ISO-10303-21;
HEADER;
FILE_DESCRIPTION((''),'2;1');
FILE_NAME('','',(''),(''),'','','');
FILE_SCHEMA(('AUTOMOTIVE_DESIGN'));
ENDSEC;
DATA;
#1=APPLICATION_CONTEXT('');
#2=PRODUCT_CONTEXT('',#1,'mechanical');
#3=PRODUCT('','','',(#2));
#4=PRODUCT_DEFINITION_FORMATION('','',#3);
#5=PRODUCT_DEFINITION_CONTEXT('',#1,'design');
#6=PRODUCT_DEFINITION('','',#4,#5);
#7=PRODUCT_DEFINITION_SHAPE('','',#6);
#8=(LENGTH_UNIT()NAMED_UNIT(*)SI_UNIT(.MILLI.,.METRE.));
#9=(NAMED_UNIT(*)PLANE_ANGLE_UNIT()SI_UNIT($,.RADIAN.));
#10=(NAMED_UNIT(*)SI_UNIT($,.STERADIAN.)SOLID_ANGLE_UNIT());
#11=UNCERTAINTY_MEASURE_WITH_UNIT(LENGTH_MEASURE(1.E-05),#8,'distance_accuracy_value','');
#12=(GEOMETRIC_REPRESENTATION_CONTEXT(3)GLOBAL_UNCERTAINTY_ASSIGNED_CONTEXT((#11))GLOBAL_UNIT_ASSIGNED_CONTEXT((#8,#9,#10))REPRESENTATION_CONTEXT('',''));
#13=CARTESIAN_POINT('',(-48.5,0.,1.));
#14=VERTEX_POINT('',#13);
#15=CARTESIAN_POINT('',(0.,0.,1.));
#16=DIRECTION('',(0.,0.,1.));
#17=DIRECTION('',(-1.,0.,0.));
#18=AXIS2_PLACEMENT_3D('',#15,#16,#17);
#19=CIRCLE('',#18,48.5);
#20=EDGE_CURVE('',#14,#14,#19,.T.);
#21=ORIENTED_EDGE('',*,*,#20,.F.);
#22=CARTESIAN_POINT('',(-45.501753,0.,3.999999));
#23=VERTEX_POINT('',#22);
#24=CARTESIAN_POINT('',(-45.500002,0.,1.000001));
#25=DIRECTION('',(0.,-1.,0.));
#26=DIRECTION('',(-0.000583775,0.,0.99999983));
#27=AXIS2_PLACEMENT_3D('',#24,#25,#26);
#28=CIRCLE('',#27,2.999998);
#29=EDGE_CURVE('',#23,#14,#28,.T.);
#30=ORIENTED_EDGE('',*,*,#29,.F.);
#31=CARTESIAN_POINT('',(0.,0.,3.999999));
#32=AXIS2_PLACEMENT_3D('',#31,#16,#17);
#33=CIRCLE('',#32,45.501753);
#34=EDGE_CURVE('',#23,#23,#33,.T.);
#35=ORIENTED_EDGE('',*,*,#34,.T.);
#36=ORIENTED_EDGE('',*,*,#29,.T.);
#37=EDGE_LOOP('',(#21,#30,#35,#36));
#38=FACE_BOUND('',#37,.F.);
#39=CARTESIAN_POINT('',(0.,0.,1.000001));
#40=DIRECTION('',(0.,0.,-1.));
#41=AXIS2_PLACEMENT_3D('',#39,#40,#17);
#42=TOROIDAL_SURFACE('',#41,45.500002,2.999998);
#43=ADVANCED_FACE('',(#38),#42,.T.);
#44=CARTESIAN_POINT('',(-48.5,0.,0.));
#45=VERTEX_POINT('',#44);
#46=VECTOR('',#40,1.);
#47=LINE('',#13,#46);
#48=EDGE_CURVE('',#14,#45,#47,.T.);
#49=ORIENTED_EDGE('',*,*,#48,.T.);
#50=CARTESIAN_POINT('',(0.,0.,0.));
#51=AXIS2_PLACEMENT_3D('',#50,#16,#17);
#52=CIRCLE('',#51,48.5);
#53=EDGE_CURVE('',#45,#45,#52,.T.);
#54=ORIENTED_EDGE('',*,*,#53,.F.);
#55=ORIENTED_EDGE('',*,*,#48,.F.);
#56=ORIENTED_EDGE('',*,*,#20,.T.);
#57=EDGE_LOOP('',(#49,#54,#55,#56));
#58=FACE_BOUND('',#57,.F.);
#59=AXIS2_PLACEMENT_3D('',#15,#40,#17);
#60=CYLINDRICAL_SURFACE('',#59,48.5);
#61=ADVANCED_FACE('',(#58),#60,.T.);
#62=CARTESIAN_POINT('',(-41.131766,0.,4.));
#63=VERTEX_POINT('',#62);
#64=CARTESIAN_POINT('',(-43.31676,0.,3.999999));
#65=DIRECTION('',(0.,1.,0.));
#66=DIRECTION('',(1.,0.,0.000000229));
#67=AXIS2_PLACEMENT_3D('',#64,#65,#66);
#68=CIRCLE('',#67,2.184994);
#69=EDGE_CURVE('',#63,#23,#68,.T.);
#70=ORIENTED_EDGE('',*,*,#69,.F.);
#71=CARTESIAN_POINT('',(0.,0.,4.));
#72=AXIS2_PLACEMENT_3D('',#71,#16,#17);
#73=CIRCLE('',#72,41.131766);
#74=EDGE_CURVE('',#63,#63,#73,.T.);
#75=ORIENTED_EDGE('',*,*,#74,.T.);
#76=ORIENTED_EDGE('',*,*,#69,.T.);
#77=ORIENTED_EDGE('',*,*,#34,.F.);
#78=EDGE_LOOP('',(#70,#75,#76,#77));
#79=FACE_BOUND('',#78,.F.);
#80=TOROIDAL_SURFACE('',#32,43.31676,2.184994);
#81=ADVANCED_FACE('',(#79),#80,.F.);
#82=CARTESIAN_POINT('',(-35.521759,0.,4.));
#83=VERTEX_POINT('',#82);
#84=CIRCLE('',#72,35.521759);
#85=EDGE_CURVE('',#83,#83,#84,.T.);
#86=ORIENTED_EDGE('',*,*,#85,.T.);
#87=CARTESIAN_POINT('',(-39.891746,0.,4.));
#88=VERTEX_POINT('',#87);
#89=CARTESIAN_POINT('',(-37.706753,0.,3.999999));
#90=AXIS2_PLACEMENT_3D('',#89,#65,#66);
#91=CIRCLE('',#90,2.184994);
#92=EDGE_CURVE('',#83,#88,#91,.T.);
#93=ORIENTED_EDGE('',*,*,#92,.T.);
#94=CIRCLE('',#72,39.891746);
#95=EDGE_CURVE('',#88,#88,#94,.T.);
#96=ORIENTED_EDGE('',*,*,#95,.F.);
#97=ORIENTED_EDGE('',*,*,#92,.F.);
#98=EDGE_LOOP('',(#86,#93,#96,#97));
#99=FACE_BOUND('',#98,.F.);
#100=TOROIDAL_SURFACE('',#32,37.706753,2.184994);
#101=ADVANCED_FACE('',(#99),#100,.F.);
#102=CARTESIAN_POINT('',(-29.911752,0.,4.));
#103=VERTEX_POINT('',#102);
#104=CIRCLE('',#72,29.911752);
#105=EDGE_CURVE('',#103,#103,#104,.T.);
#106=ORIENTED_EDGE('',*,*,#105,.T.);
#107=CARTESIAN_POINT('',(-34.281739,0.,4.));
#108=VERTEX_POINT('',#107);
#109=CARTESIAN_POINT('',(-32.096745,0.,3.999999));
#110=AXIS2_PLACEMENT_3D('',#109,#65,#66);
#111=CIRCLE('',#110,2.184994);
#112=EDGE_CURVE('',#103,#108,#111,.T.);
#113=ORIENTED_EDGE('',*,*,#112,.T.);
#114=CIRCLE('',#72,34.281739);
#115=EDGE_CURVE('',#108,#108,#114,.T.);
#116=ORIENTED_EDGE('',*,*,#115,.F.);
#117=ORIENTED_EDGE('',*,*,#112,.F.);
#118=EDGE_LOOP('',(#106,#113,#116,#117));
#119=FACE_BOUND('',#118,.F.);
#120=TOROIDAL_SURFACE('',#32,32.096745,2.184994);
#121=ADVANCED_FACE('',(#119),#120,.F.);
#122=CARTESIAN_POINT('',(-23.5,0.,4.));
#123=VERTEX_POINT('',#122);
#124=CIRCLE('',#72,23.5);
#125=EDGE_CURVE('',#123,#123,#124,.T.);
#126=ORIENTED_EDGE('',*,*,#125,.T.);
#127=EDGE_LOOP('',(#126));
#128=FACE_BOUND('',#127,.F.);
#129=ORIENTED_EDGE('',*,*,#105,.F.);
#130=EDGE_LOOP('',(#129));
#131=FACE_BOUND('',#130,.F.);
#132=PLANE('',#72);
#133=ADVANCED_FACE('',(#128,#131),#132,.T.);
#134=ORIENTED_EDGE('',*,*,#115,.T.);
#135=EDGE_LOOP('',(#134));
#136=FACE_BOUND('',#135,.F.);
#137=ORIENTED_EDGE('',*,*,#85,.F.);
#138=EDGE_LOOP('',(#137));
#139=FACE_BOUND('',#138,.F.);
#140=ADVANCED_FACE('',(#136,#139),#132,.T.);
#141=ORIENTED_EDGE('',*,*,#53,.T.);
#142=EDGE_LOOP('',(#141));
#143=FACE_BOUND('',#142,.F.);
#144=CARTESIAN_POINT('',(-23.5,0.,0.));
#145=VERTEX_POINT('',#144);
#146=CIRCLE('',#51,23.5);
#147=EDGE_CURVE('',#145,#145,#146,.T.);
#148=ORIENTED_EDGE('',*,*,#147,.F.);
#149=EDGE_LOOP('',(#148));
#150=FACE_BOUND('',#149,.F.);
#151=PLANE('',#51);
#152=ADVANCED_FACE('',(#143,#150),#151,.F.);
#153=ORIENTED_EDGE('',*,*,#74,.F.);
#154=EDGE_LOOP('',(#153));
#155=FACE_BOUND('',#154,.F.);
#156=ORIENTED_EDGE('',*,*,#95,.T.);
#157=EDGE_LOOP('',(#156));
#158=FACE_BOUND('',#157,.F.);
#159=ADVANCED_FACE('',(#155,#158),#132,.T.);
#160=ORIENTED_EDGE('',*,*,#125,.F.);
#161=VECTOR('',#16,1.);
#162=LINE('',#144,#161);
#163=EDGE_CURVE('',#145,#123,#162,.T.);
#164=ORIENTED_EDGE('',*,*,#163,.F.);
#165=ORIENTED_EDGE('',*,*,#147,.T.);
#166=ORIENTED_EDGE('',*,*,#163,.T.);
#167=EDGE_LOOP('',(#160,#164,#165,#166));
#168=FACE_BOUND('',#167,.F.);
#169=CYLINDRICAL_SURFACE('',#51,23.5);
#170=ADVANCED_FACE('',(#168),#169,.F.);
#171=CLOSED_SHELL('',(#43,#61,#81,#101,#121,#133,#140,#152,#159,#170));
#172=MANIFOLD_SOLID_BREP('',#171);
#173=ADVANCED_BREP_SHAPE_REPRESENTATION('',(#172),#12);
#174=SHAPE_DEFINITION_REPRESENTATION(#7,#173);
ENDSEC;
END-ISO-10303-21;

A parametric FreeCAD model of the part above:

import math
import FreeCAD as App
import Part
import Sketcher

V = App.Vector
Q = App.Units.Quantity

doc = App.newDocument("Part")
body = doc.addObject("PartDesign::Body", "Body")

# Sketch on XZ plane
sketch1 = body.newObject("Sketcher::SketchObject", "Sketch")
sketch1.AttachmentSupport = (doc.getObject("XZ_Plane"), [""])
sketch1.MapMode = "FlatFace"
sketch1.addGeometry([
    Part.LineSegment(V(-48.5, 0, 0), V(-23.5, 0, 0)),  # 0
    Part.LineSegment(V(-23.5, 0, 0), V(-23.5, 4, 0)),  # 1
    Part.LineSegment(V(-23.5, 4, 0), V(-29.9, 4, 0)),  # 2
    Part.ArcOfCircle(Part.Circle(V(-32.1, 4, 0), V(0, 0, 1), 2.2), math.radians(180), math.radians(360)),  # 3
    Part.LineSegment(V(-34.3, 4, 0), V(-35.5, 4, 0)),  # 4
    Part.ArcOfCircle(Part.Circle(V(-37.7, 4, 0), V(0, 0, 1), 2.2), math.radians(180), math.radians(360)),  # 5
    Part.LineSegment(V(-39.9, 4, 0), V(-41.1, 4, 0)),  # 6
    Part.ArcOfCircle(Part.Circle(V(-43.3, 4, 0), V(0, 0, 1), 2.2), math.radians(-180), math.radians(0)),  # 7
    Part.ArcOfCircle(Part.Circle(V(-45.5, 1, 0), V(0, 0, 1), 3), math.radians(90), math.radians(180)),  # 8
    Part.LineSegment(V(-48.5, 1, 0), V(-48.5, 0, 0)),  # 9
], False)
sketch1.addConstraint([
    Sketcher.Constraint("Coincident", 0, 2, 1, 1),
    Sketcher.Constraint("Coincident", 1, 2, 2, 1),
    Sketcher.Constraint("Coincident", 2, 2, 3, 2),
    Sketcher.Constraint("Coincident", 3, 1, 4, 1),
    Sketcher.Constraint("Coincident", 4, 2, 5, 2),
    Sketcher.Constraint("Coincident", 5, 1, 6, 1),
    Sketcher.Constraint("Coincident", 6, 2, 7, 2),
    Sketcher.Constraint("Coincident", 7, 1, 8, 1),
    Sketcher.Constraint("Tangent", 8, 2, 9, 1),
    Sketcher.Constraint("Coincident", 9, 2, 0, 1),
    Sketcher.Constraint("Horizontal", 0),
    Sketcher.Constraint("Vertical", 1),
    Sketcher.Constraint("Horizontal", 2),
    Sketcher.Constraint("Horizontal", 4),
    Sketcher.Constraint("Horizontal", 6),
    Sketcher.Constraint("Vertical", 9),
    Sketcher.Constraint("Equal", 3, 5),
    Sketcher.Constraint("Equal", 5, 7),
    Sketcher.Constraint("PointOnObject", 0, 2, -1),
    Sketcher.Constraint("Horizontal", 3, 3, 5, 3),
    Sketcher.Constraint("Horizontal", 5, 3, 7, 3),
    Sketcher.Constraint("Horizontal", 7, 3, 1, 2),
    Sketcher.Constraint("Horizontal", 2, 2, 3, 1),
    Sketcher.Constraint("Horizontal", 4, 2, 5, 1),
    Sketcher.Constraint("Horizontal", 6, 2, 7, 1),
    Sketcher.Constraint("Equal", 4, 6),
    Sketcher.Constraint("Radius", 8, Q("2.999998 mm")),
    Sketcher.Constraint("DistanceX", 0, 1, 0, 2, Q("25 mm")),
    Sketcher.Constraint("DistanceY", 1, 1, 1, 2, Q("4 mm")),
    Sketcher.Constraint("DistanceX", 8, 3, -1, 1, Q("45.500002 mm")),
    Sketcher.Constraint("Radius", 3, Q("2.184994 mm")),
    Sketcher.Constraint("DistanceX", 5, 3, 2, 2, Q("7.795001 mm")),
    Sketcher.Constraint("DistanceX", 2, 2, 2, 1, Q("6.411752 mm")),
])
revolution = body.newObject("PartDesign::Revolution", "Revolution")
revolution.Profile = sketch1
revolution.ReferenceAxis = (sketch1, ["V_Axis"])
revolution.Angle = 360

doc.recompute()
